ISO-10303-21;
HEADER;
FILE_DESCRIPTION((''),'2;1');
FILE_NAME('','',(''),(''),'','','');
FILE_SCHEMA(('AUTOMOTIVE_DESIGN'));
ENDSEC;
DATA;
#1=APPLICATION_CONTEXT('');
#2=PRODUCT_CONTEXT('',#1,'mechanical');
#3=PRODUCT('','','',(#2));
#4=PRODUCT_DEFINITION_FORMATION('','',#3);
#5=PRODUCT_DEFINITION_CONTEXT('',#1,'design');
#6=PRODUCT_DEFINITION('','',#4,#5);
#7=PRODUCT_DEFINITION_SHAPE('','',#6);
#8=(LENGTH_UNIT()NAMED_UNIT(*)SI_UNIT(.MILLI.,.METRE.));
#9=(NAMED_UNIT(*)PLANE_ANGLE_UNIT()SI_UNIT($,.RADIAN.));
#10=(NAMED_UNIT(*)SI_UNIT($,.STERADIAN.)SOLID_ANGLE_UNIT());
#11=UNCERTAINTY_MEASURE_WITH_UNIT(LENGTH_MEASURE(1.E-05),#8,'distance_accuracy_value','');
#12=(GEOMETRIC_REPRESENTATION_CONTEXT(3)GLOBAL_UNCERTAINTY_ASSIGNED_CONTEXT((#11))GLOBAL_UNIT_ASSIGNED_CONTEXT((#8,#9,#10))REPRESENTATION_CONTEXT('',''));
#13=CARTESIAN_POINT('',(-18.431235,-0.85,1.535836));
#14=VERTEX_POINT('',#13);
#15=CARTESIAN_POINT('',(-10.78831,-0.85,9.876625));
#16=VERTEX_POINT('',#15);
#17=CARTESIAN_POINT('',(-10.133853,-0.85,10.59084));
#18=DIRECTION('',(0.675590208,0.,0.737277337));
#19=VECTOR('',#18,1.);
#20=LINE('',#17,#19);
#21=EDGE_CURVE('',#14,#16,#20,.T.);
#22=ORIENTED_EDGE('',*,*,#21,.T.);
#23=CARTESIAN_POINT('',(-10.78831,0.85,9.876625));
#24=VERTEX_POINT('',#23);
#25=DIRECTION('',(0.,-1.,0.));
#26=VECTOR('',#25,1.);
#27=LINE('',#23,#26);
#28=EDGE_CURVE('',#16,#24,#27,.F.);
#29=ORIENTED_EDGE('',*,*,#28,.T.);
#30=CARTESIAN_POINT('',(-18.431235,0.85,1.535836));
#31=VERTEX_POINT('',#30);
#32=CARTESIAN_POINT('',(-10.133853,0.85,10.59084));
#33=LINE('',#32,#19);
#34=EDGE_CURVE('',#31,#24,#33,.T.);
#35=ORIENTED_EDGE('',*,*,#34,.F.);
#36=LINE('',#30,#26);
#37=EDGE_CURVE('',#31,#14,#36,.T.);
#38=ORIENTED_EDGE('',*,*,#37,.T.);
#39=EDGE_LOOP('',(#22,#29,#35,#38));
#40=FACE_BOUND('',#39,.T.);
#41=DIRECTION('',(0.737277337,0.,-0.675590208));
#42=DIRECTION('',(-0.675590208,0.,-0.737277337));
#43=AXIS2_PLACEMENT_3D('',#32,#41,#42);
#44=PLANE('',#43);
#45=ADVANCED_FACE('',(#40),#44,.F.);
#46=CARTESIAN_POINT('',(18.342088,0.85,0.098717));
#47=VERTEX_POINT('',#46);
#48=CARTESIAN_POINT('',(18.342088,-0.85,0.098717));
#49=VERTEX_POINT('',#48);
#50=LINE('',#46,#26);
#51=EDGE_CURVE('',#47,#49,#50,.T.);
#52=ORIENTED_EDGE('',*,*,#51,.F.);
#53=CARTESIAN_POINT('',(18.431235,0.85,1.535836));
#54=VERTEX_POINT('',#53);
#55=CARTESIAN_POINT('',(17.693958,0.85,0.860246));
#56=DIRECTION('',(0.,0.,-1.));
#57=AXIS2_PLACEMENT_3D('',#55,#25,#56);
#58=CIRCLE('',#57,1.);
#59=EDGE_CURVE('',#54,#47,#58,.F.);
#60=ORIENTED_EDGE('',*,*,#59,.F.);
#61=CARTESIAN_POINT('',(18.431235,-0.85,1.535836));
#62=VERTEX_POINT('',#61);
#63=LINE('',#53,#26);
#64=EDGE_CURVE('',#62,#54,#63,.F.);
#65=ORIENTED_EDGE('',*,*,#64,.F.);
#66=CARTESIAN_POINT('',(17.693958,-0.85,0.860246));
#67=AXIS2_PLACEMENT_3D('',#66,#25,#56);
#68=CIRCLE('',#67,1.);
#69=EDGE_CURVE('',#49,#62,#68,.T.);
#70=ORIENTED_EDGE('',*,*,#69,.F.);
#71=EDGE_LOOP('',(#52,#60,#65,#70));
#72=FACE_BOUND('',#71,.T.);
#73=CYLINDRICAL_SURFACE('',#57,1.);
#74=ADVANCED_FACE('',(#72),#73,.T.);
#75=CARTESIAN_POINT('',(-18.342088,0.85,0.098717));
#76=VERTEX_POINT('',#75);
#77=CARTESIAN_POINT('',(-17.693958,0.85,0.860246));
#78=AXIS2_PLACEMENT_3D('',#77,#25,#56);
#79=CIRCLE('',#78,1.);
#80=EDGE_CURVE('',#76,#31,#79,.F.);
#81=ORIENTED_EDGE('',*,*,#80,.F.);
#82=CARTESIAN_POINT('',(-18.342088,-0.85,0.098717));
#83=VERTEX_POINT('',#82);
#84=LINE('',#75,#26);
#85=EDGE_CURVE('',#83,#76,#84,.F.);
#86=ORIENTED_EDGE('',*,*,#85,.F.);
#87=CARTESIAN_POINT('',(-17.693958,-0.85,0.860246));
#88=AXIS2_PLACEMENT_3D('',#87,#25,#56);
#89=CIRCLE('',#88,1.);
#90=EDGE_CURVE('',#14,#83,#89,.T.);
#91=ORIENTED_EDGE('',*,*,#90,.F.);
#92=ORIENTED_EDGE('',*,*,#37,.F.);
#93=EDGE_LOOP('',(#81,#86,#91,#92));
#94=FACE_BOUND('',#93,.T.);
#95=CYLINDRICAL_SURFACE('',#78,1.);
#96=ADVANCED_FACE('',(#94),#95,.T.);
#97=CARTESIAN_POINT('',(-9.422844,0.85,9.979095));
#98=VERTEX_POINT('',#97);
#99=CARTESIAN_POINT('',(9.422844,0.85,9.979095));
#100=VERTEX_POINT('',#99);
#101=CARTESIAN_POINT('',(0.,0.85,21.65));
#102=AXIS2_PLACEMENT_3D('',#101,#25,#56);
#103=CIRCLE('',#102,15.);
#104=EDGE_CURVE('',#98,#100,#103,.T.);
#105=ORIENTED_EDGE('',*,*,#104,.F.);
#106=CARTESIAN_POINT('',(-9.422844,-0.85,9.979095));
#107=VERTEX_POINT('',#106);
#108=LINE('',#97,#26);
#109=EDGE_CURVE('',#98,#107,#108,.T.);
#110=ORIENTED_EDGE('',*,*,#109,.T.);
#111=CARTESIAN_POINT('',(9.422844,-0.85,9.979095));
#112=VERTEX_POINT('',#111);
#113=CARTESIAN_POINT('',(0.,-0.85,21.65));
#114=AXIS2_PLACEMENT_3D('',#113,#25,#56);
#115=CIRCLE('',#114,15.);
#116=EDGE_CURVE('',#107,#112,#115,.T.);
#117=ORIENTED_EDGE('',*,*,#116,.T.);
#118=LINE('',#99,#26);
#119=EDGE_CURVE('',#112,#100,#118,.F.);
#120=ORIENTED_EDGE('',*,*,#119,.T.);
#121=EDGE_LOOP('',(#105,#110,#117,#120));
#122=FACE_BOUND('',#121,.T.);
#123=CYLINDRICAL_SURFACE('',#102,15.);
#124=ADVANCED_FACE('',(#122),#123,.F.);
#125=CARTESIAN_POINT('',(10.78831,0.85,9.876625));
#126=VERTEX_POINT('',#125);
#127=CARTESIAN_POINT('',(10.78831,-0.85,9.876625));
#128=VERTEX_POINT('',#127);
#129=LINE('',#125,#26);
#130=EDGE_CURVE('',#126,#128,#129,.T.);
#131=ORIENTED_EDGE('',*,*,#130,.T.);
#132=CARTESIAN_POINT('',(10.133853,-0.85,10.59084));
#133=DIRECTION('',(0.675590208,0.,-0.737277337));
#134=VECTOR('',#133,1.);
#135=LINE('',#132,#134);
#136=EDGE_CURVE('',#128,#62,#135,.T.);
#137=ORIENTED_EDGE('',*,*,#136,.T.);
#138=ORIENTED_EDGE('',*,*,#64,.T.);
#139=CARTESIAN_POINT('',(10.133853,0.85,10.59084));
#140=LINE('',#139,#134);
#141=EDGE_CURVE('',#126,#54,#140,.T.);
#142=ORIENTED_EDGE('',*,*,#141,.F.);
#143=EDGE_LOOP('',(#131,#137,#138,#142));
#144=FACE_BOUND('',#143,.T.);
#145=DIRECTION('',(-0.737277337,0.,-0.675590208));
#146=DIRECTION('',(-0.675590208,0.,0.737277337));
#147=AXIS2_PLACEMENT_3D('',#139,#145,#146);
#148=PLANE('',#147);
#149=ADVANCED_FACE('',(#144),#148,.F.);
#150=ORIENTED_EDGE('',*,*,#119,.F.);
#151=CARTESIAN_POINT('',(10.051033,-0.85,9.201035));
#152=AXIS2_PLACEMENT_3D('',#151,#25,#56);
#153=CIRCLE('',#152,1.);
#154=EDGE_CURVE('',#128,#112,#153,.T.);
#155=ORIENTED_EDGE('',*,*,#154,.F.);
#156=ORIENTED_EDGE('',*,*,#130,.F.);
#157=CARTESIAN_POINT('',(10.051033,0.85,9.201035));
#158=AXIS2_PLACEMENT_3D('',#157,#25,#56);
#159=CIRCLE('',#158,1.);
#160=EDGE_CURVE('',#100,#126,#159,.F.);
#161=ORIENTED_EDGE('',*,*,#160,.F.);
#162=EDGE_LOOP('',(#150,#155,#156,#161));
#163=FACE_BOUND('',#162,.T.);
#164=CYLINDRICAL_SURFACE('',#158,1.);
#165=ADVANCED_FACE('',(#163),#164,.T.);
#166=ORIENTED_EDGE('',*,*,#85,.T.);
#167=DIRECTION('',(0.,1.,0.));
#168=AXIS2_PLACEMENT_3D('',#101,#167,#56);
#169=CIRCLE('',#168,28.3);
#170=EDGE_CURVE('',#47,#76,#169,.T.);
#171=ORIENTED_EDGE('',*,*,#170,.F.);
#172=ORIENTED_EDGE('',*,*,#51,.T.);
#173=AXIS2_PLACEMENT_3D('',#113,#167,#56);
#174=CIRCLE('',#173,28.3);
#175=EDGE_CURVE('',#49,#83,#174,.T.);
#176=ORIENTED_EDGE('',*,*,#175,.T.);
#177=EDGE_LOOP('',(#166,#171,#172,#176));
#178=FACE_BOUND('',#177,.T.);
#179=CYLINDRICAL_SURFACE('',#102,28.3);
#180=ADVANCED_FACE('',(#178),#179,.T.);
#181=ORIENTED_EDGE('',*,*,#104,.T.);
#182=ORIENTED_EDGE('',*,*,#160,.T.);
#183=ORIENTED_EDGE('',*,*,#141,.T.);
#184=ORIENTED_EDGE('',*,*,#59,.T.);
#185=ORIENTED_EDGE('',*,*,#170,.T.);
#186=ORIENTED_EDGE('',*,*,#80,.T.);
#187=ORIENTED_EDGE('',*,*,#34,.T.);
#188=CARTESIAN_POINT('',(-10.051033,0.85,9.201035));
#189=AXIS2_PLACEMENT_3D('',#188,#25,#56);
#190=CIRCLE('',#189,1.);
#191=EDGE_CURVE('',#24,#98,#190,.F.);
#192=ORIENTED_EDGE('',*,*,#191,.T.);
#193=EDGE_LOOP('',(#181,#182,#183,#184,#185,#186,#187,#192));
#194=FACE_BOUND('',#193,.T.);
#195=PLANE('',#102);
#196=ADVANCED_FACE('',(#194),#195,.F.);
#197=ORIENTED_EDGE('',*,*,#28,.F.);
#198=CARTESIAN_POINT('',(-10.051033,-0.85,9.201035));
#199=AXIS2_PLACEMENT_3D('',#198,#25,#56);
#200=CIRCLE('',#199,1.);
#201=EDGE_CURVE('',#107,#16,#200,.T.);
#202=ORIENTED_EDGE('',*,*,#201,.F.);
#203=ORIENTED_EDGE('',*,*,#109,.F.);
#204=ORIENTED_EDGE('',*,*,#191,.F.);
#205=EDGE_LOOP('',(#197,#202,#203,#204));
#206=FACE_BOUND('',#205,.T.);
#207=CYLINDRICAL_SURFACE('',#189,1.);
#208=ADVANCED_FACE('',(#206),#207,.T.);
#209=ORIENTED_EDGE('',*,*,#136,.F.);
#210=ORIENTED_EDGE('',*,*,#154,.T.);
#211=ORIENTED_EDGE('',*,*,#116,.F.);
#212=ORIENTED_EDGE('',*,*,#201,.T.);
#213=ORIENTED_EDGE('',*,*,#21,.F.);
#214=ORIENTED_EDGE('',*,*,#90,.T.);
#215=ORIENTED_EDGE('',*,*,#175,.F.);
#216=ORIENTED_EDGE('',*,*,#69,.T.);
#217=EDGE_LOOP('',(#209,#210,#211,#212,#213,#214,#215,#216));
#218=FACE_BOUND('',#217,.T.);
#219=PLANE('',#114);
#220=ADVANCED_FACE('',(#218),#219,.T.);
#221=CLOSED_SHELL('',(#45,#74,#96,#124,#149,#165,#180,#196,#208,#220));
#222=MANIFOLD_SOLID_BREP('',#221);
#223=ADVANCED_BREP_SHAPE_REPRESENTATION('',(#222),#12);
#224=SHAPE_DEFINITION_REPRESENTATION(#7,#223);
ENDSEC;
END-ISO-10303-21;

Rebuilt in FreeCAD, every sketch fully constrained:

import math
import FreeCAD as App
import Part
import Sketcher
Q = App.Units.Quantity


def edges_at(feature, points):
    """Names of the edges that pass closest to the given points."""
    edges = feature.Shape.Edges
    near = lambda p: min(range(len(edges)), key=lambda i: edges[i].distToShape(Part.Vertex(*p))[0])
    return sorted({f"Edge{near(p) + 1}" for p in points})

doc = App.newDocument("Part")
body = doc.addObject("PartDesign::Body", "Body")

sketch1 = body.newObject("Sketcher::SketchObject", "Sketch")
sketch1.AttachmentSupport = (doc.getObject("XZ_Plane"), [""])
sketch1.MapMode = "FlatFace"
sketch1.addGeometry([
    Part.LineSegment(App.Vector(-19, 1, 0), App.Vector(-10, 11, 0)),
    Part.ArcOfCircle(Part.Circle(App.Vector(0, 22, 0), App.Vector(0, 0, 1), 15), math.radians(-133), math.radians(-47)),
    Part.LineSegment(App.Vector(10, 11, 0), App.Vector(19, 1, 0)),
    Part.ArcOfCircle(Part.Circle(App.Vector(0, 22, 0), App.Vector(0, 0, 1), 28), math.radians(-132), math.radians(-48)),
], False)
sketch1.addConstraint([
    Sketcher.Constraint("Coincident", 0, 2, 1, 1),
    Sketcher.Constraint("Coincident", 1, 2, 2, 1),
    Sketcher.Constraint("Coincident", 2, 2, 3, 2),
    Sketcher.Constraint("Coincident", 3, 1, 0, 1),
    Sketcher.Constraint("Coincident", 3, 3, 1, 3),
    Sketcher.Constraint("Symmetric", 0, 2, 1, 2, -2),
    Sketcher.Constraint("Horizontal", 2, 2, 3, 1),
    Sketcher.Constraint("Radius", 1, Q("15 mm")),
    Sketcher.Constraint("Radius", 3, Q("28.3 mm")),
    Sketcher.Constraint("Angle", 0, Q("47.5 deg")),
    Sketcher.Constraint("DistanceY", -1, 1, 1, 3, Q("21.65 mm")),
    Sketcher.Constraint("DistanceY", -1, 1, 0, 2, Q("10.59084 mm")),
])
pad1 = body.newObject("PartDesign::Pad", "Pad")
pad1.Profile = sketch1
pad1.Length = 1.7
pad1.Midplane = True
doc.recompute()

fillet = body.newObject("PartDesign::Fillet", "Fillet")
fillet.Base = (pad1, edges_at(pad1, [
    (-10.134, 0, 10.591),
    (-19.119, 0, 0.785),
    (19.119, 0, 0.785),
    (10.134, 0, 10.591),
]))
fillet.Radius = 1

doc.recompute()
